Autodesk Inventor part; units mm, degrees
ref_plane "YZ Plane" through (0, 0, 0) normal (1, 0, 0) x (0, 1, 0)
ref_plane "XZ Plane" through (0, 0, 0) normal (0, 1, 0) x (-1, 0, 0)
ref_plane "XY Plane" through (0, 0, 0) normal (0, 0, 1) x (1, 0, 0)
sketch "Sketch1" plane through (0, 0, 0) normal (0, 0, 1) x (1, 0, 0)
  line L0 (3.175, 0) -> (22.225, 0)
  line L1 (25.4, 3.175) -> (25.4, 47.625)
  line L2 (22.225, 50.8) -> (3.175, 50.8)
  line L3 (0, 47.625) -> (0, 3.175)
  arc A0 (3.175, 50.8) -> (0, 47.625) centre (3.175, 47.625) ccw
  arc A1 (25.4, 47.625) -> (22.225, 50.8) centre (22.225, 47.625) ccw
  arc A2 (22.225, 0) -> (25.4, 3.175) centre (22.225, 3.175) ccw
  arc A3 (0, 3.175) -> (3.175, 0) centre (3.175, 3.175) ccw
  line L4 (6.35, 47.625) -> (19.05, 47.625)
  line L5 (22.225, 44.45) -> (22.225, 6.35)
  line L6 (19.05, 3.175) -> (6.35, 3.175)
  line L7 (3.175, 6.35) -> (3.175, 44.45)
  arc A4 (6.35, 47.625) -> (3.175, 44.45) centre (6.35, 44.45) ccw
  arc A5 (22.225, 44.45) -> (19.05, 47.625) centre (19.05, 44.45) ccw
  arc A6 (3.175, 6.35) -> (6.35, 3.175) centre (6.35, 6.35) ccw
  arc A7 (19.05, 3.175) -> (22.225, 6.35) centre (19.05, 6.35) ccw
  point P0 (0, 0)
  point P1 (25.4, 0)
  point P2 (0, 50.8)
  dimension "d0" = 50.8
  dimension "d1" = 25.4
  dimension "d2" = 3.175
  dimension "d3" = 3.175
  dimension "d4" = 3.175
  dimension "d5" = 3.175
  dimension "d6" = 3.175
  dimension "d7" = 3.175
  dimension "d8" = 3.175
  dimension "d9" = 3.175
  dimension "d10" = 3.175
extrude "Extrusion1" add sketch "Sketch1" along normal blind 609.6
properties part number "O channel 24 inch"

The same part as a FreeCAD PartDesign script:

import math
import FreeCAD as App
import Part
import Sketcher
from FreeCAD import Vector
Q = App.Units.Quantity

doc = App.newDocument("Part")
body = doc.addObject("PartDesign::Body", "Body")

sketch1 = body.newObject("Sketcher::SketchObject", "Sketch")
sketch1.AttachmentSupport = (doc.getObject("XY_Plane"), [""])
sketch1.MapMode = "FlatFace"
sketch1.addGeometry([
    Part.ArcOfCircle(Part.Circle(Vector(3.2, 3.2, 0), Vector(0, 0, 1), 3.2), math.radians(180), math.radians(270)),
    Part.LineSegment(Vector(3.2, 0, 0), Vector(22.2, 0, 0)),
    Part.ArcOfCircle(Part.Circle(Vector(22.2, 3.2, 0), Vector(0, 0, 1), 3.2), math.radians(-90), math.radians(0)),
    Part.LineSegment(Vector(25.4, 3.2, 0), Vector(25.4, 47.6, 0)),
    Part.ArcOfCircle(Part.Circle(Vector(22.2, 47.6, 0), Vector(0, 0, 1), 3.2), math.radians(0), math.radians(90)),
    Part.LineSegment(Vector(22.2, 50.8, 0), Vector(3.2, 50.8, 0)),
    Part.ArcOfCircle(Part.Circle(Vector(3.2, 47.6, 0), Vector(0, 0, 1), 3.2), math.radians(90), math.radians(180)),
    Part.LineSegment(Vector(0, 47.6, 0), Vector(0, 3.2, 0)),
    Part.ArcOfCircle(Part.Circle(Vector(6.3, 44.5, 0), Vector(0, 0, 1), 3.2), math.radians(90), math.radians(180)),
    Part.LineSegment(Vector(6.3, 47.6, 0), Vector(19.1, 47.6, 0)),
    Part.ArcOfCircle(Part.Circle(Vector(19.1, 44.5, 0), Vector(0, 0, 1), 3.2), math.radians(0), math.radians(90)),
    Part.LineSegment(Vector(22.2, 44.5, 0), Vector(22.2, 6.3, 0)),
    Part.ArcOfCircle(Part.Circle(Vector(19.1, 6.3, 0), Vector(0, 0, 1), 3.2), math.radians(-90), math.radians(0)),
    Part.LineSegment(Vector(19.1, 3.2, 0), Vector(6.3, 3.2, 0)),
    Part.ArcOfCircle(Part.Circle(Vector(6.3, 6.3, 0), Vector(0, 0, 1), 3.2), math.radians(180), math.radians(270)),
    Part.LineSegment(Vector(3.2, 6.3, 0), Vector(3.2, 44.5, 0)),
], False)
sketch1.addConstraint([
    Sketcher.Constraint("Tangent", 0, 2, 1, 1),
    Sketcher.Constraint("Tangent", 1, 2, 2, 1),
    Sketcher.Constraint("Tangent", 2, 2, 3, 1),
    Sketcher.Constraint("Tangent", 3, 2, 4, 1),
    Sketcher.Constraint("Tangent", 4, 2, 5, 1),
    Sketcher.Constraint("Tangent", 5, 2, 6, 1),
    Sketcher.Constraint("Tangent", 6, 2, 7, 1),
    Sketcher.Constraint("Tangent", 7, 2, 0, 1),
    Sketcher.Constraint("Tangent", 8, 1, 9, 1),
    Sketcher.Constraint("Tangent", 9, 2, 10, 2),
    Sketcher.Constraint("Tangent", 10, 1, 11, 1),
    Sketcher.Constraint("Tangent", 11, 2, 12, 2),
    Sketcher.Constraint("Tangent", 12, 1, 13, 1),
    Sketcher.Constraint("Tangent", 13, 2, 14, 2),
    Sketcher.Constraint("Tangent", 14, 1, 15, 1),
    Sketcher.Constraint("Tangent", 15, 2, 8, 2),
    Sketcher.Constraint("Horizontal", 1),
    Sketcher.Constraint("Vertical", 3),
    Sketcher.Constraint("Horizontal", 5),
    Sketcher.Constraint("Vertical", 7),
    Sketcher.Constraint("Horizontal", 9),
    Sketcher.Constraint("Vertical", 11),
    Sketcher.Constraint("Horizontal", 13),
    Sketcher.Constraint("Vertical", 15),
    Sketcher.Constraint("Equal", 0, 2),
    Sketcher.Constraint("Equal", 2, 4),
    Sketcher.Constraint("Equal", 4, 6),
    Sketcher.Constraint("Equal", 6, 8),
    Sketcher.Constraint("Equal", 8, 10),
    Sketcher.Constraint("Equal", 10, 12),
    Sketcher.Constraint("Equal", 12, 14),
    Sketcher.Constraint("PointOnObject", 0, 2, -1),
    Sketcher.Constraint("PointOnObject", 6, 2, -2),
    Sketcher.Constraint("Horizontal", 6, 2, 8, 1),
    Sketcher.Constraint("Horizontal", 7, 2, 12, 1),
    Sketcher.Constraint("Vertical", 4, 2, 10, 1),
    Sketcher.Constraint("Vertical", 5, 2, 14, 1),
    Sketcher.Constraint("DistanceX", -1, 1, 2, 2, Q("1 in")),
    Sketcher.Constraint("DistanceY", -1, 1, 4, 2, Q("2 in")),
    Sketcher.Constraint("Radius", 0, Q("0.125 in")),
])
pad1 = body.newObject("PartDesign::Pad", "Pad")
pad1.Profile = sketch1
pad1.Length = Q("24 in")

doc.recompute()
